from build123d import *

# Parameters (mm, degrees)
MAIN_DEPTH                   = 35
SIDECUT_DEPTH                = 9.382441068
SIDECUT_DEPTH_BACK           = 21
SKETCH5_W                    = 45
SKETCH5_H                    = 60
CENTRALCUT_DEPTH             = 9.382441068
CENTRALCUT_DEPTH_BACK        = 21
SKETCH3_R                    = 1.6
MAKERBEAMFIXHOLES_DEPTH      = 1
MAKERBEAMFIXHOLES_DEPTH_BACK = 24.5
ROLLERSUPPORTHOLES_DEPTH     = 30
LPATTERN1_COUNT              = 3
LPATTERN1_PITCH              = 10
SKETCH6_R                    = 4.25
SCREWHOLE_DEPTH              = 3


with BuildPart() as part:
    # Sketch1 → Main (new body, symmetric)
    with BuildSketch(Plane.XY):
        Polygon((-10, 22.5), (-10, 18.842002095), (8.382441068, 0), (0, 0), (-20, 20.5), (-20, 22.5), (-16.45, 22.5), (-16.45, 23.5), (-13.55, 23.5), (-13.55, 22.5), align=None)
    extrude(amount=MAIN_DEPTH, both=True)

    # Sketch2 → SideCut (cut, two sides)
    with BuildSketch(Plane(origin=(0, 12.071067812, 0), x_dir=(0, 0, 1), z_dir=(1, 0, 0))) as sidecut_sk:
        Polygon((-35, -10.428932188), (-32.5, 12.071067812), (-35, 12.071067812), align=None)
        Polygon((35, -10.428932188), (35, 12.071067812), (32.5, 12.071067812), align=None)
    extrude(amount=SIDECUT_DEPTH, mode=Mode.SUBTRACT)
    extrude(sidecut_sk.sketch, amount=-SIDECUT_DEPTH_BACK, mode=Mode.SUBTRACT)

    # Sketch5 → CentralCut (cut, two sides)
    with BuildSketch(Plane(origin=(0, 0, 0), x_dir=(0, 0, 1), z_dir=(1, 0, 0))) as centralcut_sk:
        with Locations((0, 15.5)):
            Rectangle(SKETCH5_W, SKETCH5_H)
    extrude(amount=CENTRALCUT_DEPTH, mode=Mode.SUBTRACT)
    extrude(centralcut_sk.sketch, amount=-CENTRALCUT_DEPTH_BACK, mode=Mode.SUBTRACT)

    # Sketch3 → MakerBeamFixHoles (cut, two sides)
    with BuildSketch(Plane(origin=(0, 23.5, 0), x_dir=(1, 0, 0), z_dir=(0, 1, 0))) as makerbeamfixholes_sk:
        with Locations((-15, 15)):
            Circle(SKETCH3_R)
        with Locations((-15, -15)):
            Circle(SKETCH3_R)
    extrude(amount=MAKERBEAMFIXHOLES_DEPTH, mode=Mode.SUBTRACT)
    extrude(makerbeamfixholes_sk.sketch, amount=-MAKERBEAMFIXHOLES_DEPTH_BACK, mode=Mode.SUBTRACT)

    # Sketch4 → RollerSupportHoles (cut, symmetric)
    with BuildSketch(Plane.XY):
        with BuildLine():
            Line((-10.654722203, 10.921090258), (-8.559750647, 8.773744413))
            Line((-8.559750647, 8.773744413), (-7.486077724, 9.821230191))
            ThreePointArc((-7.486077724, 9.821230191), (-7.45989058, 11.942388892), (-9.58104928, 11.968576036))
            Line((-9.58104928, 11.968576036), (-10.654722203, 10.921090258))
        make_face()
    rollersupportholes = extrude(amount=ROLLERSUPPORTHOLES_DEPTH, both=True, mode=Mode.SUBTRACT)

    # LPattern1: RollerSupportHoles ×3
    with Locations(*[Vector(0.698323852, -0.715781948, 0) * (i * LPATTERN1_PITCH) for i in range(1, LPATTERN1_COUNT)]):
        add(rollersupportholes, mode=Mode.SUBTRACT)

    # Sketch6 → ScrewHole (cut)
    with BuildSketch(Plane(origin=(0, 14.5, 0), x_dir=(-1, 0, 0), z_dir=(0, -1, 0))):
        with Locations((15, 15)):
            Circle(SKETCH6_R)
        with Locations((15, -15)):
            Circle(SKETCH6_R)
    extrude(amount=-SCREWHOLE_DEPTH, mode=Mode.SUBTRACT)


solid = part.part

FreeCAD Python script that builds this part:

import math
import FreeCAD as App
import Part
import Sketcher

V = App.Vector
Q = App.Units.Quantity

doc = App.newDocument("Part")
params = doc.addObject("Spreadsheet::Sheet", "Params")
for row, (alias, value) in enumerate([
    ("sketch1_height", "1 mm"),
    ("sketch1_height2", "2 mm"),
    ("sketch1_width", "2.9 mm"),
    ("pad1_length", "70 mm"),
    ("sketch2_width", "22.5 mm"),
    ("sketch2_height", "2.5 mm"),
    ("sketch3_width", "60 mm"),
    ("sketch3_height", "45 mm"),
    ("sketch4_diameter", "3.2 mm"),
    ("sketch5_radius", "1.5 mm"),
    ("sketch5_length", "1.5 mm"),
    ("pocket4_length", "60 mm"),
    ("linearpattern_pitch", "10 mm"),
    ("sketch6_diameter", "8.5 mm"),
    ("pocket5_length", "3 mm"),
], start=1):
    params.set(f"A{row}", alias)
    params.set(f"B{row}", "=" + value)
    params.setAlias(f"B{row}", alias)

body = doc.addObject("PartDesign::Body", "Body")

# Sketch on XY plane
sketch1 = body.newObject("Sketcher::SketchObject", "Sketch")
sketch1.AttachmentSupport = (doc.getObject("XY_Plane"), [""])
sketch1.MapMode = "FlatFace"
sketch1.addGeometry([
    Part.LineSegment(V(-10, 18.8, 0), V(-10, 22.5, 0)),  # 0
    Part.LineSegment(V(-10, 22.5, 0), V(-13.6, 22.5, 0)),  # 1
    Part.LineSegment(V(-13.6, 22.5, 0), V(-13.6, 23.5, 0)),  # 2
    Part.LineSegment(V(-13.6, 23.5, 0), V(-16.4, 23.5, 0)),  # 3
    Part.LineSegment(V(-16.4, 23.5, 0), V(-16.4, 22.5, 0)),  # 4
    Part.LineSegment(V(-16.4, 22.5, 0), V(-20, 22.5, 0)),  # 5
    Part.LineSegment(V(-20, 22.5, 0), V(-20, 20.5, 0)),  # 6
    Part.LineSegment(V(-20, 20.5, 0), V(0, 0, 0)),  # 7
    Part.LineSegment(V(0, 0, 0), V(8.4, 0, 0)),  # 8
    Part.LineSegment(V(8.4, 0, 0), V(-10, 18.8, 0)),  # 9
], False)
sketch1.addConstraint([
    Sketcher.Constraint("Coincident", 0, 2, 1, 1),
    Sketcher.Constraint("Coincident", 1, 2, 2, 1),
    Sketcher.Constraint("Coincident", 2, 2, 3, 1),
    Sketcher.Constraint("Coincident", 3, 2, 4, 1),
    Sketcher.Constraint("Coincident", 4, 2, 5, 1),
    Sketcher.Constraint("Coincident", 5, 2, 6, 1),
    Sketcher.Constraint("Coincident", 6, 2, 7, 1),
    Sketcher.Constraint("Coincident", 7, 2, 8, 1),
    Sketcher.Constraint("Coincident", 8, 2, 9, 1),
    Sketcher.Constraint("Coincident", 9, 2, 0, 1),
    Sketcher.Constraint("Vertical", 0),
    Sketcher.Constraint("Horizontal", 1),
    Sketcher.Constraint("Vertical", 2),
    Sketcher.Constraint("Horizontal", 3),
    Sketcher.Constraint("Vertical", 4),
    Sketcher.Constraint("Horizontal", 5),
    Sketcher.Constraint("Vertical", 6),
    Sketcher.Constraint("Horizontal", 8),
    Sketcher.Constraint("Coincident", 7, 2, -1, 1),
    Sketcher.Constraint("Parallel", 7, 9),
    Sketcher.Constraint("Horizontal", 1, 2, 4, 2),
    Sketcher.Constraint("Equal", 1, 5),
    Sketcher.Constraint("DistanceY", 2, 1, 2, 2, Q("1 mm")),
    Sketcher.Constraint("DistanceY", 6, 2, 6, 1, Q("2 mm")),
    Sketcher.Constraint("DistanceX", 3, 2, 3, 1, Q("2.9 mm")),
    Sketcher.Constraint("DistanceX", 0, 2, -1, 1, Q("10 mm")),
    Sketcher.Constraint("DistanceX", 5, 2, -1, 1, Q("20 mm")),
    Sketcher.Constraint("DistanceY", -1, 1, 0, 2, Q("22.5 mm")),
    Sketcher.Constraint("DistanceX", 8, 1, 8, 2, Q("8.382441 mm")),
])
sketch1.setExpression("Constraints[22]", "Params.sketch1_height")
sketch1.setExpression("Constraints[23]", "Params.sketch1_height2")
sketch1.setExpression("Constraints[24]", "Params.sketch1_width")
pad1 = body.newObject("PartDesign::Pad", "Pad")
pad1.Profile = sketch1
pad1.setExpression("Length", "Params.pad1_length")
pad1.Midplane = True

# Sketch on YZ plane
sketch2 = body.newObject("Sketcher::SketchObject", "Sketch001")
sketch2.AttachmentSupport = (doc.getObject("YZ_Plane"), [""])
sketch2.MapMode = "FlatFace"
sketch2.addGeometry([
    Part.LineSegment(V(22.5, -35, 0), V(0, -32.5, 0)),  # 0
    Part.LineSegment(V(0, -32.5, 0), V(0, -35, 0)),  # 1
    Part.LineSegment(V(0, -35, 0), V(22.5, -35, 0)),  # 2
    Part.LineSegment(V(22.5, 35, 0), V(0, 35, 0)),  # 3
    Part.LineSegment(V(0, 35, 0), V(0, 32.5, 0)),  # 4
    Part.LineSegment(V(0, 32.5, 0), V(22.5, 35, 0)),  # 5
], False)
sketch2.addConstraint([
    Sketcher.Constraint("Coincident", 0, 2, 1, 1),
    Sketcher.Constraint("Coincident", 1, 2, 2, 1),
    Sketcher.Constraint("Coincident", 2, 2, 0, 1),
    Sketcher.Constraint("Coincident", 3, 2, 4, 1),
    Sketcher.Constraint("Coincident", 4, 2, 5, 1),
    Sketcher.Constraint("Coincident", 5, 2, 3, 1),
    Sketcher.Constraint("Vertical", 1),
    Sketcher.Constraint("Horizontal", 2),
    Sketcher.Constraint("Horizontal", 3),
    Sketcher.Constraint("Vertical", 4),
    Sketcher.Constraint("Symmetric", 1, 2, 3, 2, -1, 1),
    Sketcher.Constraint("Symmetric", 0, 2, 4, 2, -1),
    Sketcher.Constraint("Vertical", 2, 2, 5, 2),
    Sketcher.Constraint("DistanceX", 2, 1, 2, 2, Q("22.5 mm")),
    Sketcher.Constraint("DistanceY", 1, 2, 1, 1, Q("2.5 mm")),
    Sketcher.Constraint("DistanceY", 1, 2, -1, 1, Q("35 mm")),
])
sketch2.setExpression("Constraints[13]", "Params.sketch2_width")
sketch2.setExpression("Constraints[14]", "Params.sketch2_height")
pocket1 = body.newObject("PartDesign::Pocket", "Pocket")
pocket1.Profile = sketch2
pocket1.Type = "ThroughAll"
pocket1.Midplane = True

# Sketch on YZ plane
sketch3 = body.newObject("Sketcher::SketchObject", "Sketch002")
sketch3.AttachmentSupport = (doc.getObject("YZ_Plane"), [""])
sketch3.MapMode = "FlatFace"
sketch3.addGeometry([
    Part.LineSegment(V(-46, -22, 0), V(14, -22, 0)),
    Part.LineSegment(V(14, -22, 0), V(14, 22, 0)),
    Part.LineSegment(V(14, 22, 0), V(-46, 22, 0)),
    Part.LineSegment(V(-46, 22, 0), V(-46, -22, 0)),
], False)
sketch3.addConstraint([
    Sketcher.Constraint("Coincident", 0, 2, 1, 1),
    Sketcher.Constraint("Coincident", 1, 2, 2, 1),
    Sketcher.Constraint("Coincident", 2, 2, 3, 1),
    Sketcher.Constraint("Coincident", 3, 2, 0, 1),
    Sketcher.Constraint("Horizontal", 0),
    Sketcher.Constraint("Vertical", 1),
    Sketcher.Constraint("Horizontal", 2),
    Sketcher.Constraint("Vertical", 3),
    Sketcher.Constraint("DistanceX", 0, 1, 0, 2, Q("60 mm")),
    Sketcher.Constraint("DistanceY", 1, 1, 1, 2, Q("45 mm")),
    Sketcher.Constraint("DistanceX", -1, 1, 0, 2, Q("14.5 mm")),
    Sketcher.Constraint("DistanceY", 0, 2, -1, 1, Q("22.5 mm")),
])
sketch3.setExpression("Constraints[8]", "Params.sketch3_width")
sketch3.setExpression("Constraints[9]", "Params.sketch3_height")
pocket2 = body.newObject("PartDesign::Pocket", "Pocket001")
pocket2.Profile = sketch3
pocket2.Type = "ThroughAll"
pocket2.Midplane = True

# Sketch on XZ plane
sketch4 = body.newObject("Sketcher::SketchObject", "Sketch003")
sketch4.AttachmentSupport = (doc.getObject("XZ_Plane"), [""])
sketch4.MapMode = "FlatFace"
sketch4.AttachmentOffset = App.Placement(V(0, 0, -23.5), App.Rotation())
sketch4.addGeometry([
    Part.Circle(V(-15, -15, 0), V(0, 0, 1), 1.6),
    Part.Circle(V(-15, 15, 0), V(0, 0, 1), 1.6),
], False)
sketch4.addConstraint([
    Sketcher.Constraint("Equal", 0, 1),
    Sketcher.Constraint("Symmetric", 0, 3, 1, 3, -1),
    Sketcher.Constraint("Diameter", 0, Q("3.2 mm")),
    Sketcher.Constraint("DistanceX", 0, 3, -1, 1, Q("15 mm")),
    Sketcher.Constraint("DistanceY", 0, 3, -1, 1, Q("15 mm")),
])
sketch4.setExpression("Constraints[2]", "Params.sketch4_diameter")
pocket3 = body.newObject("PartDesign::Pocket", "Pocket002")
pocket3.Profile = sketch4
pocket3.Type = "ThroughAll"
pocket3.Midplane = True

# Sketch on XY plane
sketch5 = body.newObject("Sketcher::SketchObject", "Sketch004")
sketch5.AttachmentSupport = (doc.getObject("XY_Plane"), [""])
sketch5.MapMode = "FlatFace"
sketch5.addGeometry([
    Part.LineSegment(V(-10.7, 10.9, 0), V(-8.6, 8.8, 0)),
    Part.LineSegment(V(-8.6, 8.8, 0), V(-7.5, 9.8, 0)),
    Part.ArcOfCircle(Part.Circle(V(-8.5, 10.9, 0), V(0, 0, 1), 1.5), math.radians(-46), math.radians(134)),
    Part.LineSegment(V(-9.6, 12, 0), V(-10.7, 10.9, 0)),
], False)
sketch5.addConstraint([
    Sketcher.Constraint("Coincident", 0, 2, 1, 1),
    Sketcher.Constraint("Tangent", 1, 2, 2, 1),
    Sketcher.Constraint("Tangent", 2, 2, 3, 1),
    Sketcher.Constraint("Coincident", 3, 2, 0, 1),
    Sketcher.Constraint("Perpendicular", 0, 1),
    Sketcher.Constraint("Parallel", 1, 3),
    Sketcher.Constraint("Radius", 2, Q("1.5 mm")),
    Sketcher.Constraint("Distance", 1, Q("1.5 mm")),
    Sketcher.Constraint("DistanceX", 2, 2, 0, 2, Q("1.021299 mm")),
    Sketcher.Constraint("DistanceX", 0, 2, -1, 1, Q("8.559751 mm")),
    Sketcher.Constraint("DistanceY", -1, 1, 1, 2, Q("9.82123 mm")),
])
sketch5.setExpression("Constraints[6]", "Params.sketch5_radius")
sketch5.setExpression("Constraints[7]", "Params.sketch5_length")
pocket4 = body.newObject("PartDesign::Pocket", "Pocket003")
pocket4.Profile = sketch5
pocket4.setExpression("Length", "Params.pocket4_length")
pocket4.Midplane = True
doc.recompute()

datumline = body.newObject("PartDesign::Line", "DatumLine")
datumline.Placement = App.Placement(V(0, 0, 0), App.Rotation(V(0, 0, 1), V(0.698323852, -0.715781948, 0)))
linearpattern = body.newObject("PartDesign::LinearPattern", "LinearPattern")
linearpattern.Originals = [pocket4]
linearpattern.Direction = (datumline, [""])
linearpattern.Mode = "offset"
linearpattern.setExpression("Offset", "Params.linearpattern_pitch")
linearpattern.Occurrences = 3
body.Tip = linearpattern

# Sketch on XZ plane
sketch6 = body.newObject("Sketcher::SketchObject", "Sketch005")
sketch6.AttachmentSupport = (doc.getObject("XZ_Plane"), [""])
sketch6.MapMode = "FlatFace"
sketch6.AttachmentOffset = App.Placement(V(0, 0, -14.5), App.Rotation())
sketch6.addGeometry([
    Part.Circle(V(-15, -15, 0), V(0, 0, 1), 4.2),
    Part.Circle(V(-15, 15, 0), V(0, 0, 1), 4.2),
], False)
sketch6.addConstraint([
    Sketcher.Constraint("Equal", 0, 1),
    Sketcher.Constraint("Symmetric", 0, 3, 1, 3, -1),
    Sketcher.Constraint("Diameter", 0, Q("8.5 mm")),
    Sketcher.Constraint("DistanceX", 0, 3, -1, 1, Q("15 mm")),
    Sketcher.Constraint("DistanceY", 0, 3, -1, 1, Q("15 mm")),
])
sketch6.setExpression("Constraints[2]", "Params.sketch6_diameter")
pocket5 = body.newObject("PartDesign::Pocket", "Pocket004")
pocket5.Profile = sketch6
pocket5.setExpression("Length", "Params.pocket5_length")

doc.recompute()
